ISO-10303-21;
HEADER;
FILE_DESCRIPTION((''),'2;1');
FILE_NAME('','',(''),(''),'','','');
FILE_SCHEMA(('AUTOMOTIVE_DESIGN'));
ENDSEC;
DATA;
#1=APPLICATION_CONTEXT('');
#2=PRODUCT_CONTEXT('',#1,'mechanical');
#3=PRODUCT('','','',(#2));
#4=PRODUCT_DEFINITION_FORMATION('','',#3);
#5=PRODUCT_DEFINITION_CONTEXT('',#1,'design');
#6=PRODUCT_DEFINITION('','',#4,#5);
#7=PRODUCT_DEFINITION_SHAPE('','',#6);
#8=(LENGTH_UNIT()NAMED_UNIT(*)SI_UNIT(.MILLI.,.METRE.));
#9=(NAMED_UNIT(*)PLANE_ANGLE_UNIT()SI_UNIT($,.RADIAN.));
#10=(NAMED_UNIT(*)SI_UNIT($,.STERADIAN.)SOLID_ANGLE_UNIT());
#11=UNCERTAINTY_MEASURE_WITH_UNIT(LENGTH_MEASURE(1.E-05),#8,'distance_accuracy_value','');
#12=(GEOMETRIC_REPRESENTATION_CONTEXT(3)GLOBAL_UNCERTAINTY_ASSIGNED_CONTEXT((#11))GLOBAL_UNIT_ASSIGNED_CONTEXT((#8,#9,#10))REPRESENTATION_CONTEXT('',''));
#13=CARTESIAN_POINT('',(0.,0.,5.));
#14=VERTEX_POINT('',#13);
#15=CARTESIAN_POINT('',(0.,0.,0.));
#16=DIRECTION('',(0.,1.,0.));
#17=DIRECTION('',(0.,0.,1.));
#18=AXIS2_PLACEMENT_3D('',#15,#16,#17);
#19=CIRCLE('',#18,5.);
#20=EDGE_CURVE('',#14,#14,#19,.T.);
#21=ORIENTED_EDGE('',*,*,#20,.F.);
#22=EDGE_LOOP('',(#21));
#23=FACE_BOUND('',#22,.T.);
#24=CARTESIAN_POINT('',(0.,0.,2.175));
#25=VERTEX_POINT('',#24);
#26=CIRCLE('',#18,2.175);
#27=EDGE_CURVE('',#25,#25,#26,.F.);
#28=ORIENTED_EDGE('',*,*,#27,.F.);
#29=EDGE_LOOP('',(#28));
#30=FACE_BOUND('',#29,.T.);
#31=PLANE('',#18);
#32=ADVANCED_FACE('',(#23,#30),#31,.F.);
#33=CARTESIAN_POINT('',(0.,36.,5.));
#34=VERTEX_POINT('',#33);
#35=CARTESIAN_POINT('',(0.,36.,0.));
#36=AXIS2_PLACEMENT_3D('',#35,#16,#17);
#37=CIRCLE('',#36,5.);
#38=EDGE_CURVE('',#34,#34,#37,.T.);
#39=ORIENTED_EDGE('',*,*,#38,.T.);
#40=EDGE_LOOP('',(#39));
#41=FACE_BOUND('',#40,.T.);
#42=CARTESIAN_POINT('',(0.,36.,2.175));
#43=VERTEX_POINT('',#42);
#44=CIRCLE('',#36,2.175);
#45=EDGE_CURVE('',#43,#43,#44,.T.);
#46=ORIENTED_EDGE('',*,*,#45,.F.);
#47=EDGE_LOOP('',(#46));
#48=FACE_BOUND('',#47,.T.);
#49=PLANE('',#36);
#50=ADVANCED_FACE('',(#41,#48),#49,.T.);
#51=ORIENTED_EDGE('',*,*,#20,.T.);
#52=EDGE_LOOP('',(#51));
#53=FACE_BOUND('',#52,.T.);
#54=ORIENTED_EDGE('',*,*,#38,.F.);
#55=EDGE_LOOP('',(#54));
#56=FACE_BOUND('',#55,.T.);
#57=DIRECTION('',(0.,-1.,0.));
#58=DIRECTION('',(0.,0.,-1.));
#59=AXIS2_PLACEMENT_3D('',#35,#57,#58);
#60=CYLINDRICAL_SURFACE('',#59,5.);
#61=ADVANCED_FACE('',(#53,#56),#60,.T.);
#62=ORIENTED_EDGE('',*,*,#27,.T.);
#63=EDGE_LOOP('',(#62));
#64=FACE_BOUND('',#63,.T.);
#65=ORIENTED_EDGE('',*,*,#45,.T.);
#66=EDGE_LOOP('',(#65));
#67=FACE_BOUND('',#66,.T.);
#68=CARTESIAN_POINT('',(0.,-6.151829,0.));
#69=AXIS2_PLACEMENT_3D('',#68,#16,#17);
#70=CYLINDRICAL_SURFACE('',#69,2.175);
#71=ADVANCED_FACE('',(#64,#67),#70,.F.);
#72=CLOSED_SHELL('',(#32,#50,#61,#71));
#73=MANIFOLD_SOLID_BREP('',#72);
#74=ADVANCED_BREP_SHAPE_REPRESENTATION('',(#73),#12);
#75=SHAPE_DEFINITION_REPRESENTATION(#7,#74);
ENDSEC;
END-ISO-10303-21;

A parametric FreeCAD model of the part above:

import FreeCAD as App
import Part
import Sketcher
Q = App.Units.Quantity

doc = App.newDocument("Part")
body = doc.addObject("PartDesign::Body", "Body")

sketch1 = body.newObject("Sketcher::SketchObject", "Sketch")
sketch1.AttachmentSupport = (doc.getObject("XZ_Plane"), [""])
sketch1.MapMode = "FlatFace"
sketch1.addGeometry(Part.Circle(App.Vector(0, 0, 0), App.Vector(0, 0, 1), 5), False)
sketch1.addConstraint([
    Sketcher.Constraint("Coincident", 0, 3, -1, 1),
    Sketcher.Constraint("Diameter", 0, Q("10 mm")),
])
pad1 = body.newObject("PartDesign::Pad", "Pad")
pad1.Profile = sketch1
pad1.Length = 36
pad1.Reversed = True

sketch2 = body.newObject("Sketcher::SketchObject", "Sketch001")
sketch2.AttachmentSupport = (doc.getObject("XZ_Plane"), [""])
sketch2.MapMode = "FlatFace"
sketch2.AttachmentOffset = App.Placement(App.Vector(0, 0, -36), App.Rotation())
sketch2.addGeometry(Part.Circle(App.Vector(0, 0, 0), App.Vector(0, 0, 1), 2.2), False)
sketch2.addConstraint([
    Sketcher.Constraint("Coincident", 0, 3, -1, 1),
    Sketcher.Constraint("Diameter", 0, Q("4.35 mm")),
])
pocket1 = body.newObject("PartDesign::Pocket", "Pocket")
pocket1.Profile = sketch2
pocket1.Length = 36
pocket1.Reversed = True

doc.recompute()
